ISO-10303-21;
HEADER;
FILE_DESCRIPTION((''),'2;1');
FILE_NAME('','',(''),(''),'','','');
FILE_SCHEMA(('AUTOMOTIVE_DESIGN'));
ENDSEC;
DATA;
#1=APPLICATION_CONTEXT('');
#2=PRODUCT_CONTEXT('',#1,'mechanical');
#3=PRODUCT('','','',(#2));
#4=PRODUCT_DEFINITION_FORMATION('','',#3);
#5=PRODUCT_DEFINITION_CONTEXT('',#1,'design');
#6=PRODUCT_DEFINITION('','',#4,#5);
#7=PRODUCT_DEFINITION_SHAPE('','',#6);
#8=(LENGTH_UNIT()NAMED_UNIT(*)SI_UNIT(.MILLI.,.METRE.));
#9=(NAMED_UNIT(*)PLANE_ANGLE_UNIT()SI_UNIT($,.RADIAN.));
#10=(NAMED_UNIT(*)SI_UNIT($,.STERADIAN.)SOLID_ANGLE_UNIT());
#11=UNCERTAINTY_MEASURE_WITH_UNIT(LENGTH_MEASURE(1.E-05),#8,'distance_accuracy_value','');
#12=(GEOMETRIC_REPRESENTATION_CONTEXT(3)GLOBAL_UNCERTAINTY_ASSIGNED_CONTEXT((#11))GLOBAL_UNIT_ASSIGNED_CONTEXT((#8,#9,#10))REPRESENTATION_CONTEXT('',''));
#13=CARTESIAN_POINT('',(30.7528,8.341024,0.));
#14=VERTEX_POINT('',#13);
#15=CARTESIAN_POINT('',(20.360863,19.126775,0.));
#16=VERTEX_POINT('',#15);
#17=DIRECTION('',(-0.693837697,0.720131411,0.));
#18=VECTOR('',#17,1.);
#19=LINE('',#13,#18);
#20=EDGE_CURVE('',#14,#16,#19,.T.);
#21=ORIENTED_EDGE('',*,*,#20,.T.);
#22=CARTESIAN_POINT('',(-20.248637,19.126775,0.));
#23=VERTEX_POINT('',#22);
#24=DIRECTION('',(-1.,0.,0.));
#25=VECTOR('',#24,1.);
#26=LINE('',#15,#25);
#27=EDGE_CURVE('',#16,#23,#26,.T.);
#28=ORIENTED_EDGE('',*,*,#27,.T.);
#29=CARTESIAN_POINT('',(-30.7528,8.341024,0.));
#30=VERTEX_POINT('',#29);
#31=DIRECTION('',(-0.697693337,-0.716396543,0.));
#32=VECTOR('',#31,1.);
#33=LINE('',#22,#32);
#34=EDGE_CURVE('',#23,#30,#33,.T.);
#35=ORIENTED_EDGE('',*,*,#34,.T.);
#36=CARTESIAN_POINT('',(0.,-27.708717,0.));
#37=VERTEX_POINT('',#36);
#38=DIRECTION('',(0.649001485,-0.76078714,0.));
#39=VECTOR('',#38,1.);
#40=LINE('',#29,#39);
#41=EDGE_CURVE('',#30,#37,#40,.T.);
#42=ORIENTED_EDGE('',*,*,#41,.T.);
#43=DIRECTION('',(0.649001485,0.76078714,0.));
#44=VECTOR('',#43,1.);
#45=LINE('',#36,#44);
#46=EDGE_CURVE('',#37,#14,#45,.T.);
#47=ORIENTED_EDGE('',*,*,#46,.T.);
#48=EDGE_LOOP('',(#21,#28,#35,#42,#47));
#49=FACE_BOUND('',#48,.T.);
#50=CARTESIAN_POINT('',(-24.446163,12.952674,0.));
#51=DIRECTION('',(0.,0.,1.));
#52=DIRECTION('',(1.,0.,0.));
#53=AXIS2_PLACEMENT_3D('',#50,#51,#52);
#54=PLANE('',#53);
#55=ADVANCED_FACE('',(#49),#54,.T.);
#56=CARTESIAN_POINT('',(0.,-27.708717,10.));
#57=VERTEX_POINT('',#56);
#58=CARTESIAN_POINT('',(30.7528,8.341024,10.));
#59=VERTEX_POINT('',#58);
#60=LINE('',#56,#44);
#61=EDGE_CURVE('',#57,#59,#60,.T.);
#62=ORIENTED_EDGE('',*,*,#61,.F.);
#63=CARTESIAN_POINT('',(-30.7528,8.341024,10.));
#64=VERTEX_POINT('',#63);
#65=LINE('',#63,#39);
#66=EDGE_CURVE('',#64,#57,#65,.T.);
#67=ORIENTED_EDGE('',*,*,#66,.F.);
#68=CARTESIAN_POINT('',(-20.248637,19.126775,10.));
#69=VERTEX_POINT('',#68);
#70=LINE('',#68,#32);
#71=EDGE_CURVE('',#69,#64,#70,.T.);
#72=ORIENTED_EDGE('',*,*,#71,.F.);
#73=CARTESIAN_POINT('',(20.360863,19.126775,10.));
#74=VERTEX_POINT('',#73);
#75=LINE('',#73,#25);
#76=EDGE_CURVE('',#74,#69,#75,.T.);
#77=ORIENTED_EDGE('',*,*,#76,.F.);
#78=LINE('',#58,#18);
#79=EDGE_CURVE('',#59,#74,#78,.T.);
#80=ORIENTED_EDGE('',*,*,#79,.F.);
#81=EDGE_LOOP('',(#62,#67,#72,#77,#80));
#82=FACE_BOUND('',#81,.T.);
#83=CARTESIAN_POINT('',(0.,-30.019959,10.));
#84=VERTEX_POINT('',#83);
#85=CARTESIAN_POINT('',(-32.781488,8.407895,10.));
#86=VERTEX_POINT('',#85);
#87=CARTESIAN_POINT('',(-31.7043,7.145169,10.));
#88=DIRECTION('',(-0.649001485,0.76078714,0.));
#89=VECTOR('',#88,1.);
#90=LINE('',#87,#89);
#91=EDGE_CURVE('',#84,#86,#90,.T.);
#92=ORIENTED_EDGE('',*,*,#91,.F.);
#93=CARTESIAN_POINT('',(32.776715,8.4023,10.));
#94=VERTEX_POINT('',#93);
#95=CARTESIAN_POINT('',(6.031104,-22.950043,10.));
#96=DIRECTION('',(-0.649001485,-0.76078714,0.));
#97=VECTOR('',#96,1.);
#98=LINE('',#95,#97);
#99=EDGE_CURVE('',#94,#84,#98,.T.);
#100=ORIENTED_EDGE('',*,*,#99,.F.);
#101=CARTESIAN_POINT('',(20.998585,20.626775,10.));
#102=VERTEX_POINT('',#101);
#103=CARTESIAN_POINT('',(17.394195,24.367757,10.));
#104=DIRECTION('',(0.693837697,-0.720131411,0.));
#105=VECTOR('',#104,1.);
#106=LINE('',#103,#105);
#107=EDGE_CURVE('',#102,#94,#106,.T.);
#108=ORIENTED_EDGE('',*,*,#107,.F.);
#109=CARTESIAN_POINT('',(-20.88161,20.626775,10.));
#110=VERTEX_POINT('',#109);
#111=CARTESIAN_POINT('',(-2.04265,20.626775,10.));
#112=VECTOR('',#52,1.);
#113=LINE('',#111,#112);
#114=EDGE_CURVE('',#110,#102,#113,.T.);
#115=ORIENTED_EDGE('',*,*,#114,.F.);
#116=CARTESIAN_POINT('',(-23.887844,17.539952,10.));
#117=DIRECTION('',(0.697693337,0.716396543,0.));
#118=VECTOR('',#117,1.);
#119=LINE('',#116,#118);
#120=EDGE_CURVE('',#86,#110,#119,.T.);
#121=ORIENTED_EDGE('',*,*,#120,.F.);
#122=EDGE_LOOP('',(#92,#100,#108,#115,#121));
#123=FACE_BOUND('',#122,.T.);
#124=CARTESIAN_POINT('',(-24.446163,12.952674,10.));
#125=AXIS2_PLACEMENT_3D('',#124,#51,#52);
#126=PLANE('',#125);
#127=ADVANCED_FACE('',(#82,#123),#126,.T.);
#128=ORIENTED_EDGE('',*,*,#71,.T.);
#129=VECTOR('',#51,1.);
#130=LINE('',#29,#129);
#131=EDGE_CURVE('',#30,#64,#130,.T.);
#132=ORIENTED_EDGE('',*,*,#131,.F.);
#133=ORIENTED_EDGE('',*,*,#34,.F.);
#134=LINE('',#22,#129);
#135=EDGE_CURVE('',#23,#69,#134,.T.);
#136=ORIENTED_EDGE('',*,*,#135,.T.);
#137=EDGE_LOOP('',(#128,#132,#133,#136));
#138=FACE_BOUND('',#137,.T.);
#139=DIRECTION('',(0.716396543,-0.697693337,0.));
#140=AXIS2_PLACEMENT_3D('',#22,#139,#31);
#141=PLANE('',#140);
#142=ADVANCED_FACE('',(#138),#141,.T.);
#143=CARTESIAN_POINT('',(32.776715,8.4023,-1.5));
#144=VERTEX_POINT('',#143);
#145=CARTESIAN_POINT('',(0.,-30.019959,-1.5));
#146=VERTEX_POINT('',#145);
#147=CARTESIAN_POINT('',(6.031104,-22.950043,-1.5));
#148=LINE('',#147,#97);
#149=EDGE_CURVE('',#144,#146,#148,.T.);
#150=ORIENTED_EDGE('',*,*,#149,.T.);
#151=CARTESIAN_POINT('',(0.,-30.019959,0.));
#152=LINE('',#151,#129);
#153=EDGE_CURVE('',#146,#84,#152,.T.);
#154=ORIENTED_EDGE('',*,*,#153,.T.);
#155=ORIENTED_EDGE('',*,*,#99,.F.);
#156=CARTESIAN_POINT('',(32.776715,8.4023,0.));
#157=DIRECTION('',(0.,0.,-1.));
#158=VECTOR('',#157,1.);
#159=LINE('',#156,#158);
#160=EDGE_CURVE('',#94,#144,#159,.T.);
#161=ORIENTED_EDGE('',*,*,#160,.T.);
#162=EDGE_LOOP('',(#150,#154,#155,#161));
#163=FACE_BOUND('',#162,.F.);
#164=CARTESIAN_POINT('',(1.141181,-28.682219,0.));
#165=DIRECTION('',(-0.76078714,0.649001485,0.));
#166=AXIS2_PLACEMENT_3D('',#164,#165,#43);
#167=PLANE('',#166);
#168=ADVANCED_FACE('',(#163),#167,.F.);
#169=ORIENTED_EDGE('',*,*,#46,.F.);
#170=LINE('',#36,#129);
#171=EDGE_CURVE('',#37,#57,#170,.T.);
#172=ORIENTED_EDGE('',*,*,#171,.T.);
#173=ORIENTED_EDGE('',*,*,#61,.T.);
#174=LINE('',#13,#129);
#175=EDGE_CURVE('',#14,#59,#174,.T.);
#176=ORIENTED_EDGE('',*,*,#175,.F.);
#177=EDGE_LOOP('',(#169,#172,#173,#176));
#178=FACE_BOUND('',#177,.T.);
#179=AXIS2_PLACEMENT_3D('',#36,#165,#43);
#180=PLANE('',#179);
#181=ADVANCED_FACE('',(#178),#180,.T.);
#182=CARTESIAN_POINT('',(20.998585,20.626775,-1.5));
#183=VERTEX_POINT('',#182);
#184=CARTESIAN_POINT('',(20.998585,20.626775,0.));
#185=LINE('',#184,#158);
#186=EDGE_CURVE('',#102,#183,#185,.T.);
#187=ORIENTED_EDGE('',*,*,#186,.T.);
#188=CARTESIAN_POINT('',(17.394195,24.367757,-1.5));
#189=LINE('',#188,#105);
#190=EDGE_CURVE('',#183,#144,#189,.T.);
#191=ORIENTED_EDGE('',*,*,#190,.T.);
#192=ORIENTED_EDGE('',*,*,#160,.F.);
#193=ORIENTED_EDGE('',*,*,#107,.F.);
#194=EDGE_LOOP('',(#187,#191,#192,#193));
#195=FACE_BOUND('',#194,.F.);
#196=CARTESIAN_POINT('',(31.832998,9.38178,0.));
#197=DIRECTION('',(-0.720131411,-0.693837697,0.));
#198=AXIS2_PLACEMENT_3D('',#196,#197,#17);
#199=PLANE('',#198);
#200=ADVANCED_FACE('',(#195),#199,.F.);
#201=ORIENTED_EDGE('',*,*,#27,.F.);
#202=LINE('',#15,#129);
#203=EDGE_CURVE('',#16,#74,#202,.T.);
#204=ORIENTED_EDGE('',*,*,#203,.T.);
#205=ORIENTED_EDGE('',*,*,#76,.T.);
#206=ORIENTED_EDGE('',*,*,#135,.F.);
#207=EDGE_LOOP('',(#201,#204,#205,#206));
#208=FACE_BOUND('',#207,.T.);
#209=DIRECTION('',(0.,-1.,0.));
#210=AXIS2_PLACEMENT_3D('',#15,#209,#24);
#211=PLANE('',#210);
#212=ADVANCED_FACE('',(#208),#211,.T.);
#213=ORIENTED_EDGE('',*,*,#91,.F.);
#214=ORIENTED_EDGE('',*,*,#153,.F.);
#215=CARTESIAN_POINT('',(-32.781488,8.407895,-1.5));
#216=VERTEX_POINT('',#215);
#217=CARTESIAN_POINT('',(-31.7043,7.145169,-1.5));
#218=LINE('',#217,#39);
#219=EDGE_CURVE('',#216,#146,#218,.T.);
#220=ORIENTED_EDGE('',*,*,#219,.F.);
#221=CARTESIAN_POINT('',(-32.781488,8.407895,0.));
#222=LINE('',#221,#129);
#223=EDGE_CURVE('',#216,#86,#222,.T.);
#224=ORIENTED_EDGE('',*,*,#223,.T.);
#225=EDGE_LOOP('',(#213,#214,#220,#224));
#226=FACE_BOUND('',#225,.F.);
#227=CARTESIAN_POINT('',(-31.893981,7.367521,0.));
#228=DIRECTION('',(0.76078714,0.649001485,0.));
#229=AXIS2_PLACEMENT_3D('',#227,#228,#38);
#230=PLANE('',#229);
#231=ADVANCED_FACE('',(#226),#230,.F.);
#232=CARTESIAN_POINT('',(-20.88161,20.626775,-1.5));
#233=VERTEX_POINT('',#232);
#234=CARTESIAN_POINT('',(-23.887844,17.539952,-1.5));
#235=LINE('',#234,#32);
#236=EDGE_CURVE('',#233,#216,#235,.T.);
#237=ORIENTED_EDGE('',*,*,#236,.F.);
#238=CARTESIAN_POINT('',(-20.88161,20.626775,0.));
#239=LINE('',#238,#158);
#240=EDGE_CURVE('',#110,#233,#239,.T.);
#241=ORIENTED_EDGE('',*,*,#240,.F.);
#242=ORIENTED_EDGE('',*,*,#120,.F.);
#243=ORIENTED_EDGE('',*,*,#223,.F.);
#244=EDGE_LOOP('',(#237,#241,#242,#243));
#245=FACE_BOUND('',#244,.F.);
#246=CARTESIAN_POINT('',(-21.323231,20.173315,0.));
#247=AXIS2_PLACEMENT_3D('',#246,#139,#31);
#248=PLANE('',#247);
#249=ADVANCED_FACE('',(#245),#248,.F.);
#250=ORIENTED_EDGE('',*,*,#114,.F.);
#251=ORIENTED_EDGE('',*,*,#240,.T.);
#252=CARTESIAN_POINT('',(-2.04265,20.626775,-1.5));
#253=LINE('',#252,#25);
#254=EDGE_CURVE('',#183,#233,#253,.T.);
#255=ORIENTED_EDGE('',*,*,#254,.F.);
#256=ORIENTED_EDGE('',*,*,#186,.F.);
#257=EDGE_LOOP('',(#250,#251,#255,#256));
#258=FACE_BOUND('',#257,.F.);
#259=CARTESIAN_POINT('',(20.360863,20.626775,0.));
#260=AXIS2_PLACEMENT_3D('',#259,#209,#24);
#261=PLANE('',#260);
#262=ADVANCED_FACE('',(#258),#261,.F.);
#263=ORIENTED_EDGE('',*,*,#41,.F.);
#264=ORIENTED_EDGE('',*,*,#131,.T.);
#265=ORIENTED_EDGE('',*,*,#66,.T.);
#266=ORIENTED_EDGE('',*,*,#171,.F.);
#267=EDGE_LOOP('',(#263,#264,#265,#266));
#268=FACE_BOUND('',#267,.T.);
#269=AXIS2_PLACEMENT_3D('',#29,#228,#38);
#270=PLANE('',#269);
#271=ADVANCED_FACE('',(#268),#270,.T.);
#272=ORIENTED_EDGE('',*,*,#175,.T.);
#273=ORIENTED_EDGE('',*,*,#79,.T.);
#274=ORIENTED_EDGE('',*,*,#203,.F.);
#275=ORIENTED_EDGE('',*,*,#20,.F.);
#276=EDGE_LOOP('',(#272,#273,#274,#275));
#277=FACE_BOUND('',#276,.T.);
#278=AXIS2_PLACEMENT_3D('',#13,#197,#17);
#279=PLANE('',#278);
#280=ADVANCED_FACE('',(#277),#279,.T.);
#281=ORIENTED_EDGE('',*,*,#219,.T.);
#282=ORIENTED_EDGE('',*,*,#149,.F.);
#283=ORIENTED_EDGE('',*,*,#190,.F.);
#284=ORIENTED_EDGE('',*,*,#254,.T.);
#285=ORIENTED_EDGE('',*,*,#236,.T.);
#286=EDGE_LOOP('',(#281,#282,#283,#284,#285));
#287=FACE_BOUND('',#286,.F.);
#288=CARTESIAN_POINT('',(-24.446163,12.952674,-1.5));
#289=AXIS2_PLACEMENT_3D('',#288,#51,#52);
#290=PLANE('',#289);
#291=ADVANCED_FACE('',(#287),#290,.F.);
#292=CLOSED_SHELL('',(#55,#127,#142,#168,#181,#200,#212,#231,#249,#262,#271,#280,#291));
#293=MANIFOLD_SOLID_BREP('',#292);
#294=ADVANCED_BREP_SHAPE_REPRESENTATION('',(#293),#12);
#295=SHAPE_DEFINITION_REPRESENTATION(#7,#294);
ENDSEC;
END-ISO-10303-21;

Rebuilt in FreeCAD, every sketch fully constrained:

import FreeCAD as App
import Part
import Sketcher
Q = App.Units.Quantity


def faces_at(feature, points):
    """Names of the faces that lie closest to the given points."""
    faces = feature.Shape.Faces
    near = lambda p: min(range(len(faces)), key=lambda i: faces[i].distToShape(Part.Vertex(*p))[0])
    return sorted({f"Face{near(p) + 1}" for p in points})


def add_polygon(sketch, points):
    """Adds a closed chain of lines whose ends are joined by coincident constraints."""
    first, n = sketch.GeometryCount, len(points)
    for a, b in zip(points, points[1:] + points[:1]):
        sketch.addGeometry(Part.LineSegment(App.Vector(*a, 0), App.Vector(*b, 0)), False)
    for i in range(n):
        sketch.addConstraint(Sketcher.Constraint("Coincident", first + i, 2, first + (i + 1) % n, 1))

doc = App.newDocument("Part")
body = doc.addObject("PartDesign::Body", "Body")

# Sketch on XY plane
sketch1 = body.newObject("Sketcher::SketchObject", "Sketch")
sketch1.AttachmentSupport = (doc.getObject("XY_Plane"), [""])
sketch1.MapMode = "FlatFace"
add_polygon(sketch1, [(-19, 16), (-26, 8), (0, -22), (26, 8), (19, 16)])  # lines 0-4
sketch1.addConstraint([
    Sketcher.Constraint("Horizontal", 4),
    Sketcher.Constraint("Symmetric", 0, 2, 2, 2, -2),
    Sketcher.Constraint("PointOnObject", 1, 2, -2),
    Sketcher.Constraint("Equal", 0, 3),
    Sketcher.Constraint("Distance", 0, Q("10.750149 mm")),
    Sketcher.Constraint("DistanceX", 4, 2, 4, 1, Q("38.028218 mm")),
    Sketcher.Constraint("DistanceX", 0, 2, -1, 1, Q("26.405549 mm")),
    Sketcher.Constraint("DistanceY", -1, 1, 3, 2, Q("16.225461 mm")),
    Sketcher.Constraint("DistanceY", 1, 2, 0, 2, Q("30.740108 mm")),
])
pad1 = body.newObject("PartDesign::Pad", "Pad")
pad1.Profile = sketch1
pad1.Length = 10

# Sketch on XY plane
sketch2 = body.newObject("Sketcher::SketchObject", "Sketch001")
sketch2.AttachmentSupport = (doc.getObject("XY_Plane"), [""])
sketch2.MapMode = "FlatFace"
add_polygon(sketch2, [(-20, 19), (-31, 8), (0, -28), (31, 8), (20, 19)])  # lines 0-4
add_polygon(sketch2, [(-26, 8), (-19, 16), (19, 16), (26, 8), (0, -22)])  # lines 5-9
sketch2.addConstraint([
    Sketcher.Constraint("Horizontal", 4),
    Sketcher.Constraint("Horizontal", 6),
    Sketcher.Constraint("Symmetric", 0, 2, 2, 2, -2),
    Sketcher.Constraint("Symmetric", 7, 2, 9, 2, -2),
    Sketcher.Constraint("PointOnObject", 1, 2, -2),
    Sketcher.Constraint("PointOnObject", 8, 2, -2),
    Sketcher.Constraint("Equal", 5, 7),
    Sketcher.Constraint("DistanceX", 4, 2, 4, 1, Q("40.609499 mm")),
    Sketcher.Constraint("DistanceX", 0, 2, -1, 1, Q("30.7528 mm")),
    Sketcher.Constraint("Distance", 0, Q("15.05556 mm")),
    Sketcher.Constraint("Distance", 5, Q("10.750149 mm")),
    Sketcher.Constraint("DistanceX", 6, 1, 6, 2, Q("38.028218 mm")),
    Sketcher.Constraint("DistanceY", -1, 1, 5, 2, Q("16.225461 mm")),
    Sketcher.Constraint("DistanceX", -1, 1, 7, 2, Q("26.405549 mm")),
    Sketcher.Constraint("DistanceY", 1, 2, 0, 2, Q("36.04974 mm")),
    Sketcher.Constraint("DistanceY", 2, 2, 3, 2, Q("10.785751 mm")),
    Sketcher.Constraint("DistanceY", 2, 2, 7, 2, Q("0.078522 mm")),
    Sketcher.Constraint("DistanceY", 8, 2, 7, 2, Q("30.740108 mm")),
])
pad2 = body.newObject("PartDesign::Pad", "Pad001")
pad2.Profile = sketch2
pad2.Length = 10
doc.recompute()

thickness = body.newObject("PartDesign::Thickness", "Thickness")
thickness.Base = (pad2, faces_at(pad2, [(0, -4.291, 10)]))
thickness.Value = 1.5
thickness.Reversed = False
thickness.Join = "Intersection"

# Sketch on XY plane
sketch3 = body.newObject("Sketcher::SketchObject", "Sketch002")
sketch3.AttachmentSupport = (doc.getObject("XY_Plane"), [""])
sketch3.MapMode = "FlatFace"
sketch3.AttachmentOffset = App.Placement(App.Vector(0, 0, -1.5), App.Rotation())
sketch3.addGeometry(Part.Circle(App.Vector(0, 0, 0), App.Vector(0, 0, 1), 6), False)
sketch3.addConstraint([
    Sketcher.Constraint("Coincident", 0, 3, -1, 1),
    Sketcher.Constraint("Diameter", 0, Q("11.76426 mm")),
])
pocket1 = body.newObject("PartDesign::Pocket", "Pocket")
pocket1.Profile = sketch3
pocket1.Length = 25.4

doc.recompute()
